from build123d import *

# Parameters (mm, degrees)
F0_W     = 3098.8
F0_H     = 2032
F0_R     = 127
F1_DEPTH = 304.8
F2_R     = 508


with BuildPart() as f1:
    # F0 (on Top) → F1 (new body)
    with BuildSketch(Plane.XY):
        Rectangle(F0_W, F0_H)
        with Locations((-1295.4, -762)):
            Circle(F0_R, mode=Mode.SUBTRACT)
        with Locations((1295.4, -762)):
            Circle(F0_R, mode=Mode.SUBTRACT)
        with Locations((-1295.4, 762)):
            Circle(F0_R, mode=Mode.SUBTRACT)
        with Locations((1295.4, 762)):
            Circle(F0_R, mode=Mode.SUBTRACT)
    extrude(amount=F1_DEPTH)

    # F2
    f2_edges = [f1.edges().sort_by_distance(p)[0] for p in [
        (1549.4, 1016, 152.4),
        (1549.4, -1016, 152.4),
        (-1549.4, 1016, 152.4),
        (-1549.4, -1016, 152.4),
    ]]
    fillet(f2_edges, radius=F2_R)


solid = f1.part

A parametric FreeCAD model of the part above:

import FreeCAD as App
import Part
import Sketcher

V = App.Vector
Q = App.Units.Quantity


def edges_at(feature, points):
    """Names of the edges that pass closest to the given points."""
    edges = feature.Shape.Edges
    near = lambda p: min(range(len(edges)), key=lambda i: edges[i].distToShape(Part.Vertex(*p))[0])
    return sorted({f"Edge{near(p) + 1}" for p in points})

doc = App.newDocument("Part")
body = doc.addObject("PartDesign::Body", "Body")

sketch1 = body.newObject("Sketcher::SketchObject", "Sketch")
sketch1.AttachmentSupport = (doc.getObject("XY_Plane"), [""])
sketch1.MapMode = "FlatFace"
sketch1.addGeometry([
    Part.LineSegment(V(-1549, 1016, 0), V(-1549, -1016, 0)),
    Part.LineSegment(V(-1549, -1016, 0), V(1549, -1016, 0)),
    Part.LineSegment(V(1549, -1016, 0), V(1549, 1016, 0)),
    Part.LineSegment(V(1549, 1016, 0), V(-1549, 1016, 0)),
    Part.Circle(V(-1295, -762, 0), V(0, 0, 1), 127),
    Part.Circle(V(1295, -762, 0), V(0, 0, 1), 127),
    Part.Circle(V(-1295, 762, 0), V(0, 0, 1), 127),
    Part.Circle(V(1295, 762, 0), V(0, 0, 1), 127),
], False)
sketch1.addConstraint([
    Sketcher.Constraint("Coincident", 0, 2, 1, 1),
    Sketcher.Constraint("Coincident", 1, 2, 2, 1),
    Sketcher.Constraint("Coincident", 2, 2, 3, 1),
    Sketcher.Constraint("Coincident", 3, 2, 0, 1),
    Sketcher.Constraint("Vertical", 0),
    Sketcher.Constraint("Horizontal", 1),
    Sketcher.Constraint("Vertical", 2),
    Sketcher.Constraint("Horizontal", 3),
    Sketcher.Constraint("Equal", 4, 5),
    Sketcher.Constraint("Equal", 5, 6),
    Sketcher.Constraint("Equal", 6, 7),
    Sketcher.Constraint("Symmetric", 5, 3, 6, 3, -1, 1),
    Sketcher.Constraint("Symmetric", 4, 3, 7, 3, -1, 1),
    Sketcher.Constraint("Symmetric", 0, 2, 2, 2, -1, 1),
    Sketcher.Constraint("Symmetric", 4, 3, 5, 3, -2),
    Sketcher.Constraint("Diameter", 4, Q("10 in")),
    Sketcher.Constraint("DistanceX", 1, 1, 1, 2, Q("122 in")),
    Sketcher.Constraint("DistanceY", 0, 2, 0, 1, Q("80 in")),
    Sketcher.Constraint("DistanceX", 4, 3, -1, 1, Q("51 in")),
    Sketcher.Constraint("DistanceY", 4, 3, -1, 1, Q("30 in")),
])
pad1 = body.newObject("PartDesign::Pad", "Pad")
pad1.Profile = sketch1
pad1.Length = Q("12 in")
doc.recompute()

fillet = body.newObject("PartDesign::Fillet", "Fillet")
fillet.Base = (pad1, edges_at(pad1, [
    (1549.4, 1016, 152.4),
    (1549.4, -1016, 152.4),
    (-1549.4, 1016, 152.4),
    (-1549.4, -1016, 152.4),
]))
fillet.Radius = Q("20 in")

doc.recompute()
